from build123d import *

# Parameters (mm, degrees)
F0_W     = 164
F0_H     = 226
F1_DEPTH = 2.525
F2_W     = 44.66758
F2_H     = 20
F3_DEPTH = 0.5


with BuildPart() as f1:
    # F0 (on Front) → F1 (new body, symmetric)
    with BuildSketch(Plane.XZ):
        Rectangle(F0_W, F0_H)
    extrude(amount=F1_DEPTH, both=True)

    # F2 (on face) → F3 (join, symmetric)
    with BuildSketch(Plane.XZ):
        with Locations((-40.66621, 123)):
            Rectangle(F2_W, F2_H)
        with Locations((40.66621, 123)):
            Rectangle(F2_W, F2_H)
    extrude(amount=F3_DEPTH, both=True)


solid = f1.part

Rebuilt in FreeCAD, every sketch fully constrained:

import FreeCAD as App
import Part
import Sketcher

doc = App.newDocument("Part")
params = doc.addObject("Spreadsheet::Sheet", "Params")
for row, (alias, value) in enumerate([
    ("sketch1_width", "164 mm"),
    ("sketch1_height", "226 mm"),
    ("pad1_length", "5.05 mm"),
    ("sketch2_height", "20 mm"),
    ("pad2_length", "1 mm"),
], start=1):
    params.set(f"A{row}", alias)
    params.set(f"B{row}", "=" + value)
    params.setAlias(f"B{row}", alias)

body = doc.addObject("PartDesign::Body", "Body")

# Sketch on XZ plane
sketch1 = body.newObject("Sketcher::SketchObject", "Sketch")
sketch1.AttachmentSupport = (doc.getObject("XZ_Plane"), [""])
sketch1.MapMode = "FlatFace"
sketch1.addGeometry([
    Part.LineSegment(App.Vector(-82, 113, 0), App.Vector(-82, -113, 0)),
    Part.LineSegment(App.Vector(-82, -113, 0), App.Vector(82, -113, 0)),
    Part.LineSegment(App.Vector(82, -113, 0), App.Vector(82, 113, 0)),
    Part.LineSegment(App.Vector(82, 113, 0), App.Vector(-82, 113, 0)),
], False)
sketch1.addConstraint([
    Sketcher.Constraint("Coincident", 0, 2, 1, 1),
    Sketcher.Constraint("Coincident", 1, 2, 2, 1),
    Sketcher.Constraint("Coincident", 2, 2, 3, 1),
    Sketcher.Constraint("Coincident", 3, 2, 0, 1),
    Sketcher.Constraint("Vertical", 0),
    Sketcher.Constraint("Horizontal", 1),
    Sketcher.Constraint("Vertical", 2),
    Sketcher.Constraint("Horizontal", 3),
    Sketcher.Constraint("Symmetric", 0, 2, 2, 2, -1, 1),
    Sketcher.Constraint("DistanceX", 1, 1, 1, 2, 164.0),
    Sketcher.Constraint("DistanceY", 0, 2, 0, 1, 226.0),
])
sketch1.setExpression("Constraints[9]", "Params.sketch1_width")
sketch1.setExpression("Constraints[10]", "Params.sketch1_height")
pad1 = body.newObject("PartDesign::Pad", "Pad")
pad1.Profile = sketch1
pad1.setExpression("Length", "Params.pad1_length")
pad1.Midplane = True

# Sketch on XZ plane
sketch2 = body.newObject("Sketcher::SketchObject", "Sketch001")
sketch2.AttachmentSupport = (doc.getObject("XZ_Plane"), [""])
sketch2.MapMode = "FlatFace"
sketch2.addGeometry([
    Part.LineSegment(App.Vector(-63, 133, 0), App.Vector(-63, 113, 0)),  # 0
    Part.LineSegment(App.Vector(-63, 113, 0), App.Vector(-18, 113, 0)),  # 1
    Part.LineSegment(App.Vector(-18, 113, 0), App.Vector(-18, 133, 0)),  # 2
    Part.LineSegment(App.Vector(-18, 133, 0), App.Vector(-63, 133, 0)),  # 3
    Part.LineSegment(App.Vector(18, 133, 0), App.Vector(18, 113, 0)),  # 4
    Part.LineSegment(App.Vector(18, 113, 0), App.Vector(63, 113, 0)),  # 5
    Part.LineSegment(App.Vector(63, 113, 0), App.Vector(63, 133, 0)),  # 6
    Part.LineSegment(App.Vector(63, 133, 0), App.Vector(18, 133, 0)),  # 7
], False)
sketch2.addConstraint([
    Sketcher.Constraint("Coincident", 0, 2, 1, 1),
    Sketcher.Constraint("Coincident", 1, 2, 2, 1),
    Sketcher.Constraint("Coincident", 2, 2, 3, 1),
    Sketcher.Constraint("Coincident", 3, 2, 0, 1),
    Sketcher.Constraint("Coincident", 4, 2, 5, 1),
    Sketcher.Constraint("Coincident", 5, 2, 6, 1),
    Sketcher.Constraint("Coincident", 6, 2, 7, 1),
    Sketcher.Constraint("Coincident", 7, 2, 4, 1),
    Sketcher.Constraint("Vertical", 0),
    Sketcher.Constraint("Horizontal", 1),
    Sketcher.Constraint("Vertical", 2),
    Sketcher.Constraint("Horizontal", 3),
    Sketcher.Constraint("Vertical", 4),
    Sketcher.Constraint("Horizontal", 5),
    Sketcher.Constraint("Vertical", 6),
    Sketcher.Constraint("Horizontal", 7),
    Sketcher.Constraint("Symmetric", 1, 2, 4, 2, -2),
    Sketcher.Constraint("Symmetric", 3, 2, 6, 2, -2),
    Sketcher.Constraint("DistanceY", 0, 2, 0, 1, 20.0),
    Sketcher.Constraint("DistanceX", 0, 2, -1, 1, 63.0),
    Sketcher.Constraint("DistanceY", -1, 1, 0, 2, 113.0),
    Sketcher.Constraint("DistanceX", 1, 1, 1, 2, 44.66758),
])
sketch2.setExpression("Constraints[18]", "Params.sketch2_height")
pad2 = body.newObject("PartDesign::Pad", "Pad001")
pad2.Profile = sketch2
pad2.setExpression("Length", "Params.pad2_length")
pad2.Midplane = True

doc.recompute()
